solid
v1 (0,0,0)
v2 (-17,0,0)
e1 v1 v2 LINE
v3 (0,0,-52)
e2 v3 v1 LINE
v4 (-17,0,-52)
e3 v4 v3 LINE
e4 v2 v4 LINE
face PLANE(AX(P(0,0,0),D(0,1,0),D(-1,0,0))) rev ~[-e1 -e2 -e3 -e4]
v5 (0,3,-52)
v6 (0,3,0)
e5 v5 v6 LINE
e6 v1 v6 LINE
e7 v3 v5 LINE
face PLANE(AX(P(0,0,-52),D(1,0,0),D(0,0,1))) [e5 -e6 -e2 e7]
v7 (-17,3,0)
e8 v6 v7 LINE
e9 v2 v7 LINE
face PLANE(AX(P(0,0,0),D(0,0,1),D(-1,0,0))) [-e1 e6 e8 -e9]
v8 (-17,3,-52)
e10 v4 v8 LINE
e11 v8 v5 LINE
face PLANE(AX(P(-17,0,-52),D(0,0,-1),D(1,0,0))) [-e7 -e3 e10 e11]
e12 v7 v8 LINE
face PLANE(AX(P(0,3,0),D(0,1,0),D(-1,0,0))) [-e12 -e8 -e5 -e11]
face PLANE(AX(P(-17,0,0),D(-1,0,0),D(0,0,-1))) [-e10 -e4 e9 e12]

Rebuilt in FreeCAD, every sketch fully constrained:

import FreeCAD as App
import Part
import Sketcher
Q = App.Units.Quantity

doc = App.newDocument("Part")
params = doc.addObject("Spreadsheet::Sheet", "Params")
for row, (alias, value) in enumerate([
    ("sketch1_width", "17 mm"),
    ("sketch1_height", "52 mm"),
    ("pad1_length", "3 mm"),
], start=1):
    params.set(f"A{row}", alias)
    params.set(f"B{row}", "=" + value)
    params.setAlias(f"B{row}", alias)

body = doc.addObject("PartDesign::Body", "Body")

sketch1 = body.newObject("Sketcher::SketchObject", "Sketch")
sketch1.AttachmentSupport = (doc.getObject("XZ_Plane"), [""])
sketch1.MapMode = "FlatFace"
sketch1.addGeometry([
    Part.LineSegment(App.Vector(-17, 0, 0), App.Vector(0, 0, 0)),
    Part.LineSegment(App.Vector(0, 0, 0), App.Vector(0, -52, 0)),
    Part.LineSegment(App.Vector(0, -52, 0), App.Vector(-17, -52, 0)),
    Part.LineSegment(App.Vector(-17, -52, 0), App.Vector(-17, 0, 0)),
], False)
sketch1.addConstraint([
    Sketcher.Constraint("Coincident", 0, 2, 1, 1),
    Sketcher.Constraint("Coincident", 1, 2, 2, 1),
    Sketcher.Constraint("Coincident", 2, 2, 3, 1),
    Sketcher.Constraint("Coincident", 3, 2, 0, 1),
    Sketcher.Constraint("Horizontal", 0),
    Sketcher.Constraint("Vertical", 1),
    Sketcher.Constraint("Horizontal", 2),
    Sketcher.Constraint("Vertical", 3),
    Sketcher.Constraint("Coincident", 0, 2, -1, 1),
    Sketcher.Constraint("DistanceX", 0, 1, 0, 2, Q("17 mm")),
    Sketcher.Constraint("DistanceY", 1, 2, 1, 1, Q("52 mm")),
])
sketch1.setExpression("Constraints[9]", "Params.sketch1_width")
sketch1.setExpression("Constraints[10]", "Params.sketch1_height")
pad1 = body.newObject("PartDesign::Pad", "Pad")
pad1.Profile = sketch1
pad1.setExpression("Length", "Params.pad1_length")
pad1.Reversed = True

doc.recompute()
